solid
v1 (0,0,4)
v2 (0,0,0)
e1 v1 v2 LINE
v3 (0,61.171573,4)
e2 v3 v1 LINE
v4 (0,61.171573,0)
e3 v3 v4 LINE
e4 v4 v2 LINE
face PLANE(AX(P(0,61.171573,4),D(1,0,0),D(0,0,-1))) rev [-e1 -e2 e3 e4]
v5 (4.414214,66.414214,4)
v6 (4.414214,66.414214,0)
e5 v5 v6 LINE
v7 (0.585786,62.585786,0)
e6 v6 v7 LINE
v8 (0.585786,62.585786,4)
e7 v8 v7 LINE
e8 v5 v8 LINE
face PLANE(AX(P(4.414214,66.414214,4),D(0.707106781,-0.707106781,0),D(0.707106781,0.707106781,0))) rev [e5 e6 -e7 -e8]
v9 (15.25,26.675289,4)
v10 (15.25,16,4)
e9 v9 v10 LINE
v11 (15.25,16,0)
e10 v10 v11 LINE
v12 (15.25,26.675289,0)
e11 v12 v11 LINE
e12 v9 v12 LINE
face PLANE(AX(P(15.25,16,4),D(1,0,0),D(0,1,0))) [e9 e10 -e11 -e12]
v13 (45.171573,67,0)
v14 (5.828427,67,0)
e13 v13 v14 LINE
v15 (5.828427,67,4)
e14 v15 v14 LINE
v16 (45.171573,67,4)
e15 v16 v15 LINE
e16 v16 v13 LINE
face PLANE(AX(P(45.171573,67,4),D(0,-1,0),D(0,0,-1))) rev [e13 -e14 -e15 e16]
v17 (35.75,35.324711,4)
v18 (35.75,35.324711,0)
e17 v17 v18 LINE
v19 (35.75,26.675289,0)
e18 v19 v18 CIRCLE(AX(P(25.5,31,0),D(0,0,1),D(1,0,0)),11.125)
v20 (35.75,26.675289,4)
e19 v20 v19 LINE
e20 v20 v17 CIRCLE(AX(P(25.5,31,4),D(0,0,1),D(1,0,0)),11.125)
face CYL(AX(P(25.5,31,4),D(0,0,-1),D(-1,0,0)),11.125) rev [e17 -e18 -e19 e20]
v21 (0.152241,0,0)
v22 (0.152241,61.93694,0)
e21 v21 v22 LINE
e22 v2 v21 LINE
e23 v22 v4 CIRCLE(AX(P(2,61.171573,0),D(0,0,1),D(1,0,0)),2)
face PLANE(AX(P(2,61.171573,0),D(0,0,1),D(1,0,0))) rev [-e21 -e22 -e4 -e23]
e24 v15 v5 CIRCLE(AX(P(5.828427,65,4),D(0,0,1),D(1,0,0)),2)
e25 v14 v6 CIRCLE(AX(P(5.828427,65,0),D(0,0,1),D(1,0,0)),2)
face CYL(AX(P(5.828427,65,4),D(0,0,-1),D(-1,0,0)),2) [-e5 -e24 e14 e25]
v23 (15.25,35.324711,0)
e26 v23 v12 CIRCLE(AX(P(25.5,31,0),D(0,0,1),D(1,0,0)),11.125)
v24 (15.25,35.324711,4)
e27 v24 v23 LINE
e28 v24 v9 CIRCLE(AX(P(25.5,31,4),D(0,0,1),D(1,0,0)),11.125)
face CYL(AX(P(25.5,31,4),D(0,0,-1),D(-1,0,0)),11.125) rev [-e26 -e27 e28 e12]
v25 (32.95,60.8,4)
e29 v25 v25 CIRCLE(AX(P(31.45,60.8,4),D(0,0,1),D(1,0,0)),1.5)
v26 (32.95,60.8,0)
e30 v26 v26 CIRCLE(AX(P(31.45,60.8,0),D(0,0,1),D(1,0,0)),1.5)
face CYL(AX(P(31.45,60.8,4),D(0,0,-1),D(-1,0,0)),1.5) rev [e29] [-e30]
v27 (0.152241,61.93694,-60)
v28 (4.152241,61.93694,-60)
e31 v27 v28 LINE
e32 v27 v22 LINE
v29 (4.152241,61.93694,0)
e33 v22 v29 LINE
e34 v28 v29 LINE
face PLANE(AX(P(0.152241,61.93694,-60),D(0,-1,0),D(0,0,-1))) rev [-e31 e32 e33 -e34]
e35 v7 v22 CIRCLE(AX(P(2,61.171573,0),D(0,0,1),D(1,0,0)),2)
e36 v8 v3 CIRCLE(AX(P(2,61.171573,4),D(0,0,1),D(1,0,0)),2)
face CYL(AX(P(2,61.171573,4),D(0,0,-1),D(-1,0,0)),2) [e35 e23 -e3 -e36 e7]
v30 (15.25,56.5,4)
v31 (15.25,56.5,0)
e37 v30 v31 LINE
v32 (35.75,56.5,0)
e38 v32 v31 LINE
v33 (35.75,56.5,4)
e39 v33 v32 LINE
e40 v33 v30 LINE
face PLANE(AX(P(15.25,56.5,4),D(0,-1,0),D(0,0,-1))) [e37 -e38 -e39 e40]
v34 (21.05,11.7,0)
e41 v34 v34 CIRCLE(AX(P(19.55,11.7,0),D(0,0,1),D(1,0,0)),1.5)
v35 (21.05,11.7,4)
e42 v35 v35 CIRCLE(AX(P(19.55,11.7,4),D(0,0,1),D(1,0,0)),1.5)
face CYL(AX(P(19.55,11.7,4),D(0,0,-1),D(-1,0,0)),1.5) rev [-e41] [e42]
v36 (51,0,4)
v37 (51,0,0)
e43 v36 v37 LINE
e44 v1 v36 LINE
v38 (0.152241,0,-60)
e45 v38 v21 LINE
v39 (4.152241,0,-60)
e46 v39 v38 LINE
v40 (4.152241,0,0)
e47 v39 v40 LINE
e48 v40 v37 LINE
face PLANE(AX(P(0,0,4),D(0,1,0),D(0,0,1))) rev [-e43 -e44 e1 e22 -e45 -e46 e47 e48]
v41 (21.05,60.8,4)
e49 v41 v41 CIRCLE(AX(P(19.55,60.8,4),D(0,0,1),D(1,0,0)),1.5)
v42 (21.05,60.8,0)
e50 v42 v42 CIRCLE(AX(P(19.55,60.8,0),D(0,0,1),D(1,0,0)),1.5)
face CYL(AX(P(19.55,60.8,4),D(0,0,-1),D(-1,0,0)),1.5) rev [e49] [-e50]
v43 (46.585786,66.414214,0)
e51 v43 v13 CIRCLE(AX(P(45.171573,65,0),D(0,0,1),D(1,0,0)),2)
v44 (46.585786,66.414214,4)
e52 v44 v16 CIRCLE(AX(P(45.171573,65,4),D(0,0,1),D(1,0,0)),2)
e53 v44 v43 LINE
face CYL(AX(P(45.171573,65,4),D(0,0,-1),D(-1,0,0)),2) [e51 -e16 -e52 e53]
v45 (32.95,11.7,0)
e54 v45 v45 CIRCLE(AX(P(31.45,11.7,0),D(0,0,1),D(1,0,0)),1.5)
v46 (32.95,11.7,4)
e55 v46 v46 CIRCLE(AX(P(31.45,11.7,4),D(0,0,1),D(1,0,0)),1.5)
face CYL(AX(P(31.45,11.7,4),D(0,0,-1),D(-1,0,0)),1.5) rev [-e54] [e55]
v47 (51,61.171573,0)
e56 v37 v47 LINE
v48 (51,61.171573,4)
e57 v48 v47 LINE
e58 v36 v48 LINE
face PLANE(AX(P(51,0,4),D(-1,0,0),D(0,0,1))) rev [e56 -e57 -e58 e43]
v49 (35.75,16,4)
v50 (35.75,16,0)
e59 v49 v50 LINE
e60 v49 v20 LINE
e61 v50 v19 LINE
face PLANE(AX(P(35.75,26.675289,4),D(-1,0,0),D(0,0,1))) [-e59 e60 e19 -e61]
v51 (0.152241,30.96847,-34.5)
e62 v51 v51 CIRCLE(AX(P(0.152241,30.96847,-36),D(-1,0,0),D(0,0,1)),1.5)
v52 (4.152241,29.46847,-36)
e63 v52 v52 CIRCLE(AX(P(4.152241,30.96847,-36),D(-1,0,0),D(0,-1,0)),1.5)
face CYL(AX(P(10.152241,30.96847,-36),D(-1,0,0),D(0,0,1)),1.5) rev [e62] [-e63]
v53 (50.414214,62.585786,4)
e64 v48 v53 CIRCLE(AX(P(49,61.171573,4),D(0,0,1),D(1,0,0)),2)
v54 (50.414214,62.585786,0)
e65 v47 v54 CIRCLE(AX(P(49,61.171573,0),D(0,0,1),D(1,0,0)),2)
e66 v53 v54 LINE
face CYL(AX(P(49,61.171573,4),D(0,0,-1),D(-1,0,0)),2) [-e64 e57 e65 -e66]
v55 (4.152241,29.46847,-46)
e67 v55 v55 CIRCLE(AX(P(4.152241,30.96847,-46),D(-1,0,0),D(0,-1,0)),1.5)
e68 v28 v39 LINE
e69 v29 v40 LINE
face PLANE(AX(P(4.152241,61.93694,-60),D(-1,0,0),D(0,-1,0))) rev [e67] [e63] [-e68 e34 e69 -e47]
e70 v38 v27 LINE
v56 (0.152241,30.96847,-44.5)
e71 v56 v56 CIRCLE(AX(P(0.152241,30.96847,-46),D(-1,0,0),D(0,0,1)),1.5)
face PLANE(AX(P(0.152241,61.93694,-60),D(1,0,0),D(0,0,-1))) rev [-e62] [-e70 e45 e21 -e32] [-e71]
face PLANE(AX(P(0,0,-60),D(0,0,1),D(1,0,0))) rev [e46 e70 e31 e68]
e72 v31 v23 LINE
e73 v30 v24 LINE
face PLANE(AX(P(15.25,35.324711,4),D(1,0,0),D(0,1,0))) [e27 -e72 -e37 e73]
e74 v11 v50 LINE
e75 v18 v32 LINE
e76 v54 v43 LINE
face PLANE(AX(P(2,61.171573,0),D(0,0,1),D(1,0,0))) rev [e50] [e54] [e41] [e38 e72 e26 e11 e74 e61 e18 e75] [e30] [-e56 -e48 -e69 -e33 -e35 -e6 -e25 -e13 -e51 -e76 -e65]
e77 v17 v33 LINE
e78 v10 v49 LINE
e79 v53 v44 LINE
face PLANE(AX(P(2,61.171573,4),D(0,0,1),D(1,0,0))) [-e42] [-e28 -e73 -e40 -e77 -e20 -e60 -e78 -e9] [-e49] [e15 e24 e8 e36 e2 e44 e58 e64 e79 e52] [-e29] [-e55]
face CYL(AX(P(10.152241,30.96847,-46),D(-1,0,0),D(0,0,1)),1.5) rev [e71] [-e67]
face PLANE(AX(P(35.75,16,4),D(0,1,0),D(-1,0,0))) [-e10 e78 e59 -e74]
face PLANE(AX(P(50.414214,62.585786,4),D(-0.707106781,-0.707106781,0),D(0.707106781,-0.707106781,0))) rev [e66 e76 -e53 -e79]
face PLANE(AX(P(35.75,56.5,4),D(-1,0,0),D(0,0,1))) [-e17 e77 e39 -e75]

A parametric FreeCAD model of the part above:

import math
import FreeCAD as App
import Part
import Sketcher

V = App.Vector
Q = App.Units.Quantity

doc = App.newDocument("Part")
body = doc.addObject("PartDesign::Body", "Body")

sketch1 = body.newObject("Sketcher::SketchObject", "Sketch")
sketch1.AttachmentSupport = (doc.getObject("XY_Plane"), [""])
sketch1.MapMode = "FlatFace"
sketch1.addGeometry(Part.LineSegment(V(0, 61.2, 0), V(0, 0, 0)), False)
sketch1.addGeometry(Part.LineSegment(V(0, 0, 0), V(51, 0, 0)), False)
sketch1.addGeometry(Part.LineSegment(V(51, 0, 0), V(51, 61.2, 0)), False)
sketch1.addGeometry(Part.ArcOfCircle(Part.Circle(V(49, 61.2, 0), V(0, 0, 1), 2), math.radians(0), math.radians(45)), False)
sketch1.addGeometry(Part.LineSegment(V(50.4, 62.6, 0), V(46.6, 66.4, 0)), False)
sketch1.addGeometry(Part.ArcOfCircle(Part.Circle(V(45.2, 65, 0), V(0, 0, 1), 2), math.radians(45), math.radians(90)), False)
sketch1.addGeometry(Part.LineSegment(V(45.2, 67, 0), V(5.8, 67, 0)), False)
sketch1.addGeometry(Part.ArcOfCircle(Part.Circle(V(5.8, 65, 0), V(0, 0, 1), 2), math.radians(90), math.radians(135)), False)
sketch1.addGeometry(Part.LineSegment(V(4.4, 66.4, 0), V(0.6, 62.6, 0)), False)
sketch1.addGeometry(Part.ArcOfCircle(Part.Circle(V(2, 61.2, 0), V(0, 0, 1), 2), math.radians(135), math.radians(180)), False)
sketch1.addGeometry(Part.Circle(V(19.6, 11.7, 0), V(0, 0, 1), 1.5), False)
sketch1.addGeometry(Part.Circle(V(31.4, 11.7, 0), V(0, 0, 1), 1.5), False)
sketch1.addGeometry(Part.Circle(V(19.6, 60.8, 0), V(0, 0, 1), 1.5), False)
sketch1.addGeometry(Part.LineSegment(V(15.2, 35.3, 0), V(15.2, 56.5, 0)), False)
sketch1.addGeometry(Part.LineSegment(V(15.2, 56.5, 0), V(35.8, 56.5, 0)), False)
sketch1.addGeometry(Part.LineSegment(V(35.8, 56.5, 0), V(35.8, 35.3, 0)), False)
sketch1.addGeometry(Part.ArcOfCircle(Part.Circle(V(25.5, 31, 0), V(0, 0, 1), 11.1), math.radians(-23), math.radians(23)), False)
sketch1.addGeometry(Part.LineSegment(V(35.8, 26.7, 0), V(35.8, 16, 0)), False)
sketch1.addGeometry(Part.LineSegment(V(35.8, 16, 0), V(15.2, 16, 0)), False)
sketch1.addGeometry(Part.LineSegment(V(15.2, 16, 0), V(15.2, 26.7, 0)), False)
sketch1.addGeometry(Part.ArcOfCircle(Part.Circle(V(25.5, 31, 0), V(0, 0, 1), 11.1), math.radians(157), math.radians(203)), False)
sketch1.addGeometry(Part.Circle(V(31.4, 60.8, 0), V(0, 0, 1), 1.5), False)
sketch1.addConstraint(Sketcher.Constraint("Coincident", 0, 2, 1, 1))
sketch1.addConstraint(Sketcher.Constraint("Coincident", 1, 2, 2, 1))
sketch1.addConstraint(Sketcher.Constraint("Tangent", 2, 2, 3, 1))
sketch1.addConstraint(Sketcher.Constraint("Tangent", 3, 2, 4, 1))
sketch1.addConstraint(Sketcher.Constraint("Tangent", 4, 2, 5, 1))
sketch1.addConstraint(Sketcher.Constraint("Tangent", 5, 2, 6, 1))
sketch1.addConstraint(Sketcher.Constraint("Tangent", 6, 2, 7, 1))
sketch1.addConstraint(Sketcher.Constraint("Tangent", 7, 2, 8, 1))
sketch1.addConstraint(Sketcher.Constraint("Tangent", 8, 2, 9, 1))
sketch1.addConstraint(Sketcher.Constraint("Tangent", 9, 2, 0, 1))
sketch1.addConstraint(Sketcher.Constraint("Coincident", 13, 2, 14, 1))
sketch1.addConstraint(Sketcher.Constraint("Coincident", 14, 2, 15, 1))
sketch1.addConstraint(Sketcher.Constraint("Coincident", 15, 2, 16, 2))
sketch1.addConstraint(Sketcher.Constraint("Coincident", 16, 1, 17, 1))
sketch1.addConstraint(Sketcher.Constraint("Coincident", 17, 2, 18, 1))
sketch1.addConstraint(Sketcher.Constraint("Coincident", 18, 2, 19, 1))
sketch1.addConstraint(Sketcher.Constraint("Coincident", 19, 2, 20, 2))
sketch1.addConstraint(Sketcher.Constraint("Coincident", 20, 1, 13, 1))
sketch1.addConstraint(Sketcher.Constraint("Vertical", 0))
sketch1.addConstraint(Sketcher.Constraint("Horizontal", 1))
sketch1.addConstraint(Sketcher.Constraint("Vertical", 2))
sketch1.addConstraint(Sketcher.Constraint("Horizontal", 6))
sketch1.addConstraint(Sketcher.Constraint("Vertical", 13))
sketch1.addConstraint(Sketcher.Constraint("Horizontal", 14))
sketch1.addConstraint(Sketcher.Constraint("Vertical", 15))
sketch1.addConstraint(Sketcher.Constraint("Vertical", 17))
sketch1.addConstraint(Sketcher.Constraint("Horizontal", 18))
sketch1.addConstraint(Sketcher.Constraint("Vertical", 19))
sketch1.addConstraint(Sketcher.Constraint("Coincident", 0, 2, -1, 1))
sketch1.addConstraint(Sketcher.Constraint("Coincident", 20, 3, 16, 3))
sketch1.addConstraint(Sketcher.Constraint("Equal", 3, 5))
sketch1.addConstraint(Sketcher.Constraint("Equal", 5, 7))
sketch1.addConstraint(Sketcher.Constraint("Equal", 7, 9))
sketch1.addConstraint(Sketcher.Constraint("Equal", 10, 11))
sketch1.addConstraint(Sketcher.Constraint("Equal", 11, 12))
sketch1.addConstraint(Sketcher.Constraint("Equal", 16, 20))
sketch1.addConstraint(Sketcher.Constraint("Equal", 12, 21))
sketch1.addConstraint(Sketcher.Constraint("Perpendicular", 4, 8))
sketch1.addConstraint(Sketcher.Constraint("Horizontal", 3, 3, 9, 3))
sketch1.addConstraint(Sketcher.Constraint("Horizontal", 10, 3, 11, 3))
sketch1.addConstraint(Sketcher.Constraint("Horizontal", 12, 3, 21, 3))
sketch1.addConstraint(Sketcher.Constraint("Horizontal", 4, 2, 7, 2))
sketch1.addConstraint(Sketcher.Constraint("Horizontal", 16, 1, 19, 2))
sketch1.addConstraint(Sketcher.Constraint("Horizontal", 15, 2, 20, 1))
sketch1.addConstraint(Sketcher.Constraint("Vertical", 10, 3, 12, 3))
sketch1.addConstraint(Sketcher.Constraint("Vertical", 11, 3, 21, 3))
sketch1.addConstraint(Sketcher.Constraint("Vertical", 15, 2, 16, 1))
sketch1.addConstraint(Sketcher.Constraint("Diameter", 10, Q("3 mm")))
sketch1.addConstraint(Sketcher.Constraint("Radius", 3, Q("2 mm")))
sketch1.addConstraint(Sketcher.Constraint("DistanceX", 1, 1, 1, 2, Q("51 mm")))
sketch1.addConstraint(Sketcher.Constraint("DistanceX", 14, 1, 14, 2, Q("20.5 mm")))
sketch1.addConstraint(Sketcher.Constraint("DistanceY", -1, 1, 5, 3, Q("65 mm")))
sketch1.addConstraint(Sketcher.Constraint("DistanceY", -1, 1, 16, 3, Q("31 mm")))
sketch1.addConstraint(Sketcher.Constraint("DistanceY", -1, 1, 17, 2, Q("16 mm")))
sketch1.addConstraint(Sketcher.Constraint("Radius", 16, Q("11.125 mm")))
sketch1.addConstraint(Sketcher.Constraint("DistanceY", -1, 1, 10, 3, Q("11.7 mm")))
sketch1.addConstraint(Sketcher.Constraint("DistanceY", -1, 1, 12, 3, Q("60.8 mm")))
sketch1.addConstraint(Sketcher.Constraint("DistanceX", -1, 1, 16, 3, Q("25.5 mm")))
sketch1.addConstraint(Sketcher.Constraint("DistanceY", -1, 1, 13, 2, Q("56.5 mm")))
sketch1.addConstraint(Sketcher.Constraint("DistanceX", 10, 3, 11, 3, Q("11.9 mm")))
sketch1.addConstraint(Sketcher.Constraint("DistanceX", 13, 2, 12, 3, Q("4.3 mm")))
sketch1.addConstraint(Sketcher.Constraint("DistanceX", 6, 2, 6, 1, Q("39.343146 mm")))
pad1 = body.newObject("PartDesign::Pad", "Pad")
pad1.Profile = sketch1
pad1.Length = 4

sketch2 = body.newObject("Sketcher::SketchObject", "Sketch001")
sketch2.AttachmentSupport = (doc.getObject("XY_Plane"), [""])
sketch2.MapMode = "FlatFace"
sketch2.addGeometry(Part.LineSegment(V(4.2, 61.9, 0), V(4.2, 0, 0)), False)
sketch2.addGeometry(Part.LineSegment(V(4.2, 0, 0), V(0.2, 0, 0)), False)
sketch2.addGeometry(Part.LineSegment(V(0.2, 0, 0), V(0.2, 61.9, 0)), False)
sketch2.addGeometry(Part.LineSegment(V(0.2, 61.9, 0), V(4.2, 61.9, 0)), False)
sketch2.addConstraint(Sketcher.Constraint("Coincident", 0, 2, 1, 1))
sketch2.addConstraint(Sketcher.Constraint("Coincident", 1, 2, 2, 1))
sketch2.addConstraint(Sketcher.Constraint("Coincident", 2, 2, 3, 1))
sketch2.addConstraint(Sketcher.Constraint("Coincident", 3, 2, 0, 1))
sketch2.addConstraint(Sketcher.Constraint("Vertical", 0))
sketch2.addConstraint(Sketcher.Constraint("Horizontal", 1))
sketch2.addConstraint(Sketcher.Constraint("Vertical", 2))
sketch2.addConstraint(Sketcher.Constraint("Horizontal", 3))
sketch2.addConstraint(Sketcher.Constraint("PointOnObject", 0, 2, -1))
sketch2.addConstraint(Sketcher.Constraint("DistanceX", 1, 2, 1, 1, Q("4 mm")))
sketch2.addConstraint(Sketcher.Constraint("DistanceY", 0, 2, 0, 1, Q("61.93694 mm")))
sketch2.addConstraint(Sketcher.Constraint("DistanceX", -1, 1, 0, 2, Q("4.152241 mm")))
pad2 = body.newObject("PartDesign::Pad", "Pad001")
pad2.Profile = sketch2
pad2.Length = 60
pad2.Reversed = True

sketch3 = body.newObject("Sketcher::SketchObject", "Sketch002")
sketch3.AttachmentSupport = (doc.getObject("YZ_Plane"), [""])
sketch3.MapMode = "FlatFace"
sketch3.AttachmentOffset = App.Placement(V(0, 0, 0.152241), App.Rotation())
sketch3.addGeometry(Part.Circle(V(31, -46, 0), V(0, 0, 1), 1.5), False)
sketch3.addGeometry(Part.Circle(V(31, -36, 0), V(0, 0, 1), 1.5), False)
sketch3.addConstraint(Sketcher.Constraint("Equal", 0, 1))
sketch3.addConstraint(Sketcher.Constraint("Vertical", 0, 3, 1, 3))
sketch3.addConstraint(Sketcher.Constraint("Diameter", 0, Q("3 mm")))
sketch3.addConstraint(Sketcher.Constraint("DistanceY", 0, 3, -1, 1, Q("46 mm")))
sketch3.addConstraint(Sketcher.Constraint("DistanceY", 1, 3, -1, 1, Q("36 mm")))
sketch3.addConstraint(Sketcher.Constraint("DistanceX", -1, 1, 0, 3, Q("30.96847 mm")))
pocket1 = body.newObject("PartDesign::Pocket", "Pocket")
pocket1.Profile = sketch3
pocket1.Length = 10
pocket1.Reversed = True

doc.recompute()
